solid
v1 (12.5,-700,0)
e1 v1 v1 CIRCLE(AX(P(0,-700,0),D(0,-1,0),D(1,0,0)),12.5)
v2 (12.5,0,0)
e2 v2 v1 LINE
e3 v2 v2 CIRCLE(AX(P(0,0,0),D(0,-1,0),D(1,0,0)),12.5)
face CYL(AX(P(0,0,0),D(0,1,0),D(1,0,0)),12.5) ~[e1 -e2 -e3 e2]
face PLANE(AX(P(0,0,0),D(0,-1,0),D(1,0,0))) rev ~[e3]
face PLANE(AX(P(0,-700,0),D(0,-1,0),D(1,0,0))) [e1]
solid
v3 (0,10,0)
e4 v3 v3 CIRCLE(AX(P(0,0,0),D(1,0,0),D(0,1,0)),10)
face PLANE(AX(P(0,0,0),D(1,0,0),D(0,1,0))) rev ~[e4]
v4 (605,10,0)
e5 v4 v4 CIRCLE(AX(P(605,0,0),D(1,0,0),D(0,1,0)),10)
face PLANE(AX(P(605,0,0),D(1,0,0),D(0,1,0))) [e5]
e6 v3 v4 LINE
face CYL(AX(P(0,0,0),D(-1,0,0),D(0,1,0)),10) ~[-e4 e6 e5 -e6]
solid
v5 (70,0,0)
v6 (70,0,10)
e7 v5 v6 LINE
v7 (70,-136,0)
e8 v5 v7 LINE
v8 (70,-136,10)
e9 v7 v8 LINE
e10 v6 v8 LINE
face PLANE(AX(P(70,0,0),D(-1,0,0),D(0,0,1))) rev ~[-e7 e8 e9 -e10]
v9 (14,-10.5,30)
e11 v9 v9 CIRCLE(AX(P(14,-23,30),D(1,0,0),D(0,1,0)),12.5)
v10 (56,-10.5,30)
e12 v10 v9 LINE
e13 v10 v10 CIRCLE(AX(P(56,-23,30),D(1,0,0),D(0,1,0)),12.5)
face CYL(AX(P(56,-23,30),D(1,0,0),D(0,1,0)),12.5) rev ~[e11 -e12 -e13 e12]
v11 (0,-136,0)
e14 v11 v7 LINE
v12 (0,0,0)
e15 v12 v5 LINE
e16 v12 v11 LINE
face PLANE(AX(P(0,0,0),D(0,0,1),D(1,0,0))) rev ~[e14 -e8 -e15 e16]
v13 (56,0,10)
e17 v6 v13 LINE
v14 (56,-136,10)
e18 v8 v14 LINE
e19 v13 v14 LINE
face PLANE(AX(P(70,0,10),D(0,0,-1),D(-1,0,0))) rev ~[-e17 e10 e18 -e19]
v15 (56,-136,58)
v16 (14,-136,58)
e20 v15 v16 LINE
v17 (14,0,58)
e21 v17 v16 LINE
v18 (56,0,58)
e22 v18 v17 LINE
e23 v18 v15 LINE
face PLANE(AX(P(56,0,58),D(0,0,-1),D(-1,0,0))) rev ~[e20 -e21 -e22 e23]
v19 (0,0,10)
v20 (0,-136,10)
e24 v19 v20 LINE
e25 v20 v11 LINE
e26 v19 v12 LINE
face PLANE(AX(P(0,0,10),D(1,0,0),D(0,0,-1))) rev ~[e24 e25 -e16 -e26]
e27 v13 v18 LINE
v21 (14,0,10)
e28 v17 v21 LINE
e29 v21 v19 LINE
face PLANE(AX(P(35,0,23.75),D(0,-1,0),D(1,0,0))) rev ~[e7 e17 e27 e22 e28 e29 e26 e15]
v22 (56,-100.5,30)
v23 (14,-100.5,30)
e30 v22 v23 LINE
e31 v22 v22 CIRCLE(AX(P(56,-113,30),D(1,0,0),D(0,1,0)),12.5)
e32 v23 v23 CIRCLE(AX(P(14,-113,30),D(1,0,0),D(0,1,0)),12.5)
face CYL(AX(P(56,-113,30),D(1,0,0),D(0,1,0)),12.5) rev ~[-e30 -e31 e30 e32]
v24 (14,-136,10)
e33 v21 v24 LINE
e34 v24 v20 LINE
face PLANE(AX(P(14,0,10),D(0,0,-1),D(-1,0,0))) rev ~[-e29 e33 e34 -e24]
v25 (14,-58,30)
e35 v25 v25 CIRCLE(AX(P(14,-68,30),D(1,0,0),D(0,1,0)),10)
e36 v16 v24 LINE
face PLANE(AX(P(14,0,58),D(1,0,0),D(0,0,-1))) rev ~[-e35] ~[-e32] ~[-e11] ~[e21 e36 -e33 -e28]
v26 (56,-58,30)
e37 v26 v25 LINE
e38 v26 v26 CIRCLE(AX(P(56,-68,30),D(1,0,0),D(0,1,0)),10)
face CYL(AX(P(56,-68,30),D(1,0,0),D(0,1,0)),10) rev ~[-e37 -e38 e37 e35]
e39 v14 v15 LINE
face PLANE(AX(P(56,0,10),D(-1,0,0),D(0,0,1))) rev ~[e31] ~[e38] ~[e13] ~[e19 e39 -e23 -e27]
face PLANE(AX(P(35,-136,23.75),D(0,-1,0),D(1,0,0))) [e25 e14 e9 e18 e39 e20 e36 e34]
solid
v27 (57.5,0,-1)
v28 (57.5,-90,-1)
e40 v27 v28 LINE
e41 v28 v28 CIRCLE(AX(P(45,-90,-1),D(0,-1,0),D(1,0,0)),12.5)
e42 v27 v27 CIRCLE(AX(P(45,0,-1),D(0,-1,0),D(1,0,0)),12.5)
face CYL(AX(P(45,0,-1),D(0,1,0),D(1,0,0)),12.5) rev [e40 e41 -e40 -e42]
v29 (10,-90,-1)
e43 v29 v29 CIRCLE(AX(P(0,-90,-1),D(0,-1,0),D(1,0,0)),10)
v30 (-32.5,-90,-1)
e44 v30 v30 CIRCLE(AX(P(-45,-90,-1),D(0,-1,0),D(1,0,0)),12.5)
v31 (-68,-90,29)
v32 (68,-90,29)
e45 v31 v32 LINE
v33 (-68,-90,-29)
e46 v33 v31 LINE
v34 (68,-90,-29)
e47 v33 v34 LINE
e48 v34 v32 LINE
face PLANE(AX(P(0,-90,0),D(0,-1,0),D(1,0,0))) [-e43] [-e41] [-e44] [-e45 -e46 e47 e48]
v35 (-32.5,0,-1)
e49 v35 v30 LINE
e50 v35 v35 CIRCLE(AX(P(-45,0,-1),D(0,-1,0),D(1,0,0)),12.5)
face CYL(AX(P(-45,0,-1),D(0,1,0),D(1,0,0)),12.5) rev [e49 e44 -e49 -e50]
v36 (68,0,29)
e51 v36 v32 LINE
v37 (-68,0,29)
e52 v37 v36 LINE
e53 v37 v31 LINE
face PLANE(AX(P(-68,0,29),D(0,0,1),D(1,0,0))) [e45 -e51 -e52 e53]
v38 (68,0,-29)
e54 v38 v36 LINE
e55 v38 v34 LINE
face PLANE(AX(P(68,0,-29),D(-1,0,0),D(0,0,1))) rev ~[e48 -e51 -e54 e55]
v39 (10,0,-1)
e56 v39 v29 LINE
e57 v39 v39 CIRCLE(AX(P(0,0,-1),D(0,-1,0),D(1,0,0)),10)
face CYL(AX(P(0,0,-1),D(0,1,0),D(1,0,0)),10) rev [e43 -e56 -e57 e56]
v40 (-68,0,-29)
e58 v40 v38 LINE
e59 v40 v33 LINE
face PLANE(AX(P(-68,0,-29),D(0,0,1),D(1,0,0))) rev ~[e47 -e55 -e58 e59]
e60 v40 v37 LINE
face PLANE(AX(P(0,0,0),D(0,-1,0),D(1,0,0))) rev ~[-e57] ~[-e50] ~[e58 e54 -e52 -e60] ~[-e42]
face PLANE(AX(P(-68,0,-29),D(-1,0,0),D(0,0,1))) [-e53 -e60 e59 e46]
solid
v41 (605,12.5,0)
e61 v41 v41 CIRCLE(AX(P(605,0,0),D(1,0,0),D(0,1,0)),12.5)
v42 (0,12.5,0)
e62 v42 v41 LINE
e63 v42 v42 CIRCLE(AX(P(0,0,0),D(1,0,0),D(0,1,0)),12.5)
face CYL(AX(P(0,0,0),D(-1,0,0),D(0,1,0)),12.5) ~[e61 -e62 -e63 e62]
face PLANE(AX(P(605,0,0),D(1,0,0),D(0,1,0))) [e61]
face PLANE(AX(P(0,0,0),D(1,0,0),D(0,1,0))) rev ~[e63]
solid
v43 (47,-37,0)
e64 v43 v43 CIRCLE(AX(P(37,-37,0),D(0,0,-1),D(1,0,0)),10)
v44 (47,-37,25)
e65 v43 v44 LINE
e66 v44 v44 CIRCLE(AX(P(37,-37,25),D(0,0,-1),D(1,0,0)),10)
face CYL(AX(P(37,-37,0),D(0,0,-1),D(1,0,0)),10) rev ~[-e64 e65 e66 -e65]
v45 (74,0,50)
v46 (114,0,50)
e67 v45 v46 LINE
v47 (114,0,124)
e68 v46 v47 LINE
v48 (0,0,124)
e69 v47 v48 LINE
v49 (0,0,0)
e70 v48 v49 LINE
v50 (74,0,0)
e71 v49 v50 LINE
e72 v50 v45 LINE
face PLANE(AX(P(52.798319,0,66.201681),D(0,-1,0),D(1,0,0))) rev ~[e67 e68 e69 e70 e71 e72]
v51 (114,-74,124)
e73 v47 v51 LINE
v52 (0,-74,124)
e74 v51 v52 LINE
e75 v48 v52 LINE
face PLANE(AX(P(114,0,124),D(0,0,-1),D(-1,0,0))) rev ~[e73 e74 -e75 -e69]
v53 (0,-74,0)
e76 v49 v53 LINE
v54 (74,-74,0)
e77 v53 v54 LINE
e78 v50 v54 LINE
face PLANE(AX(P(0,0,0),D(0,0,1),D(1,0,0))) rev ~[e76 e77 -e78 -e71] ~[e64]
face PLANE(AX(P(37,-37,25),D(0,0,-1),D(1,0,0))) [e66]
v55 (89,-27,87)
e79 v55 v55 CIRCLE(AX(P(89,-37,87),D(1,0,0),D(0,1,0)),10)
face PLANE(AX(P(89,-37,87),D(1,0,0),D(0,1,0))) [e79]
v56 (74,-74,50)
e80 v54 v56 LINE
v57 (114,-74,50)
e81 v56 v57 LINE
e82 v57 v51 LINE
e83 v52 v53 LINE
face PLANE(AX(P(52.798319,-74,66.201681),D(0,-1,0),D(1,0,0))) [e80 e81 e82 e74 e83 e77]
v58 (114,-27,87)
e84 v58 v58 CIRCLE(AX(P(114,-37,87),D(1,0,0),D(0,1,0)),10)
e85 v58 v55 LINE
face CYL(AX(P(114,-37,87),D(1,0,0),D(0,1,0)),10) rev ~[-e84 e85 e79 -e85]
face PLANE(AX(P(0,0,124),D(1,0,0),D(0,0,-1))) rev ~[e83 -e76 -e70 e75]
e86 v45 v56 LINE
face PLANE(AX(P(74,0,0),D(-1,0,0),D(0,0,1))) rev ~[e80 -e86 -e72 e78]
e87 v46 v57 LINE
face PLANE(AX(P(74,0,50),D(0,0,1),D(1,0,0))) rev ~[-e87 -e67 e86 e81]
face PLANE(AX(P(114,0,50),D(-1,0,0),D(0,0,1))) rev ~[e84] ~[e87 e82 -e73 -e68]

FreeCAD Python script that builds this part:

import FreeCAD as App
import Part
import Sketcher


def add_polygon(sketch, points):
    """Adds a closed chain of lines whose ends are joined by coincident constraints."""
    first, n = sketch.GeometryCount, len(points)
    for a, b in zip(points, points[1:] + points[:1]):
        sketch.addGeometry(Part.LineSegment(App.Vector(*a, 0), App.Vector(*b, 0)), False)
    for i in range(n):
        sketch.addConstraint(Sketcher.Constraint("Coincident", first + i, 2, first + (i + 1) % n, 1))

doc = App.newDocument("Part")
body = doc.addObject("PartDesign::Body", "Body")

sketch1 = body.newObject("Sketcher::SketchObject", "Sketch")
sketch1.AttachmentSupport = (doc.getObject("XZ_Plane"), [""])
sketch1.MapMode = "FlatFace"
add_polygon(sketch1, [(0, 10), (0, 0), (70, 0), (70, 10), (56, 10), (56, 58), (14, 58), (14, 10)])
sketch1.addConstraint([
    Sketcher.Constraint("Vertical", 0),
    Sketcher.Constraint("Horizontal", 1),
    Sketcher.Constraint("Vertical", 2),
    Sketcher.Constraint("Horizontal", 3),
    Sketcher.Constraint("Vertical", 4),
    Sketcher.Constraint("Horizontal", 5),
    Sketcher.Constraint("Vertical", 6),
    Sketcher.Constraint("Horizontal", 7),
    Sketcher.Constraint("Coincident", 0, 2, -1, 1),
    Sketcher.Constraint("Horizontal", 3, 2, 6, 2),
    Sketcher.Constraint("Equal", 3, 7),
    Sketcher.Constraint("DistanceX", 1, 1, 1, 2, 70.0),
    Sketcher.Constraint("DistanceX", 3, 2, 3, 1, 14.0),
    Sketcher.Constraint("DistanceY", 0, 2, 0, 1, 10.0),
    Sketcher.Constraint("DistanceY", 4, 1, 4, 2, 48.0),
])
pad1 = body.newObject("PartDesign::Pad", "Pad")
pad1.Profile = sketch1
pad1.Length = 136

sketch2 = body.newObject("Sketcher::SketchObject", "Sketch001")
sketch2.AttachmentSupport = (doc.getObject("YZ_Plane"), [""])
sketch2.MapMode = "FlatFace"
sketch2.AttachmentOffset = App.Placement(App.Vector(0, 0, 56), App.Rotation())
sketch2.addGeometry([
    Part.Circle(App.Vector(-113, 30, 0), App.Vector(0, 0, 1), 12),
    Part.Circle(App.Vector(-68, 30, 0), App.Vector(0, 0, 1), 10),
    Part.Circle(App.Vector(-23, 30, 0), App.Vector(0, 0, 1), 12),
], False)
sketch2.addConstraint([
    Sketcher.Constraint("Equal", 0, 2),
    Sketcher.Constraint("Horizontal", 0, 3, 1, 3),
    Sketcher.Constraint("Horizontal", 1, 3, 2, 3),
    Sketcher.Constraint("Diameter", 0, 25.0),
    Sketcher.Constraint("Diameter", 1, 20.0),
    Sketcher.Constraint("DistanceX", 0, 3, -1, 1, 113.0),
    Sketcher.Constraint("DistanceY", -1, 1, 0, 3, 30.0),
    Sketcher.Constraint("DistanceX", 1, 3, -1, 1, 68.0),
    Sketcher.Constraint("DistanceX", 2, 3, -1, 1, 23.0),
])
pocket1 = body.newObject("PartDesign::Pocket", "Pocket")
pocket1.Profile = sketch2
pocket1.Type = "ThroughAll"
body2 = doc.addObject("PartDesign::Body", "Body001")

sketch3 = body2.newObject("Sketcher::SketchObject", "Sketch002")
sketch3.AttachmentSupport = (doc.getObject("YZ_Plane001"), [""])
sketch3.MapMode = "FlatFace"
sketch3.addGeometry(Part.Circle(App.Vector(0, 0, 0), App.Vector(0, 0, 1), 10), False)
sketch3.addConstraint([
    Sketcher.Constraint("Coincident", 0, 3, -1, 1),
    Sketcher.Constraint("Diameter", 0, 20.0),
])
pad2 = body2.newObject("PartDesign::Pad", "Pad001")
pad2.Profile = sketch3
pad2.Length = 605
body3 = doc.addObject("PartDesign::Body", "Body002")

sketch4 = body3.newObject("Sketcher::SketchObject", "Sketch003")
sketch4.AttachmentSupport = (doc.getObject("YZ_Plane002"), [""])
sketch4.MapMode = "FlatFace"
sketch4.addGeometry(Part.Circle(App.Vector(0, 0, 0), App.Vector(0, 0, 1), 12), False)
sketch4.addConstraint([
    Sketcher.Constraint("Coincident", 0, 3, -1, 1),
    Sketcher.Constraint("Diameter", 0, 25.0),
])
pad3 = body3.newObject("PartDesign::Pad", "Pad002")
pad3.Profile = sketch4
pad3.Length = 605
body4 = doc.addObject("PartDesign::Body", "Body003")

sketch5 = body4.newObject("Sketcher::SketchObject", "Sketch004")
sketch5.AttachmentSupport = (doc.getObject("XZ_Plane003"), [""])
sketch5.MapMode = "FlatFace"
add_polygon(sketch5, [(-68, 29), (-68, -29), (68, -29), (68, 29)])
sketch5.addGeometry(Part.Circle(App.Vector(-45, -1, 0), App.Vector(0, 0, 1), 12), False)
sketch5.addGeometry(Part.Circle(App.Vector(0, -1, 0), App.Vector(0, 0, 1), 10), False)
sketch5.addGeometry(Part.Circle(App.Vector(45, -1, 0), App.Vector(0, 0, 1), 12), False)
sketch5.addConstraint([
    Sketcher.Constraint("Vertical", 0),
    Sketcher.Constraint("Horizontal", 1),
    Sketcher.Constraint("Vertical", 2),
    Sketcher.Constraint("Horizontal", 3),
    Sketcher.Constraint("Equal", 4, 6),
    Sketcher.Constraint("Symmetric", 0, 2, 2, 2, -1, 1),
    Sketcher.Constraint("Symmetric", 4, 3, 6, 3, -2),
    Sketcher.Constraint("PointOnObject", 5, 3, -2),
    Sketcher.Constraint("Horizontal", 4, 3, 5, 3),
    Sketcher.Constraint("Diameter", 4, 25.0),
    Sketcher.Constraint("Diameter", 5, 20.0),
    Sketcher.Constraint("DistanceX", 1, 1, 1, 2, 136.0),
    Sketcher.Constraint("DistanceY", 0, 2, 0, 1, 58.0),
    Sketcher.Constraint("DistanceX", 4, 3, -1, 1, 45.0),
    Sketcher.Constraint("DistanceY", 4, 3, -1, 1, 1.0),
])
pad4 = body4.newObject("PartDesign::Pad", "Pad003")
pad4.Profile = sketch5
pad4.Length = 90
body5 = doc.addObject("PartDesign::Body", "Body004")

sketch6 = body5.newObject("Sketcher::SketchObject", "Sketch005")
sketch6.AttachmentSupport = (doc.getObject("XZ_Plane004"), [""])
sketch6.MapMode = "FlatFace"
add_polygon(sketch6, [(0, 124), (0, 0), (74, 0), (74, 50), (114, 50), (114, 124)])
sketch6.addConstraint([
    Sketcher.Constraint("Vertical", 0),
    Sketcher.Constraint("Horizontal", 1),
    Sketcher.Constraint("Vertical", 2),
    Sketcher.Constraint("Horizontal", 3),
    Sketcher.Constraint("Vertical", 4),
    Sketcher.Constraint("Horizontal", 5),
    Sketcher.Constraint("Coincident", 0, 2, -1, 1),
    Sketcher.Constraint("Equal", 1, 4),
    Sketcher.Constraint("DistanceX", 1, 1, 1, 2, 74.0),
    Sketcher.Constraint("DistanceX", 3, 1, 3, 2, 40.0),
    Sketcher.Constraint("DistanceY", 0, 2, 0, 1, 124.0),
])
pad5 = body5.newObject("PartDesign::Pad", "Pad004")
pad5.Profile = sketch6
pad5.Length = 74

sketch7 = body5.newObject("Sketcher::SketchObject", "Sketch006")
sketch7.AttachmentSupport = (doc.getObject("XY_Plane004"), [""])
sketch7.MapMode = "FlatFace"
sketch7.addGeometry(Part.Circle(App.Vector(37, -37, 0), App.Vector(0, 0, 1), 10), False)
sketch7.addConstraint([
    Sketcher.Constraint("Diameter", 0, 20.0),
    Sketcher.Constraint("DistanceX", -1, 1, 0, 3, 37.0),
    Sketcher.Constraint("DistanceY", 0, 3, -1, 1, 37.0),
])
pocket2 = body5.newObject("PartDesign::Pocket", "Pocket001")
pocket2.Profile = sketch7
pocket2.Length = 25
pocket2.Reversed = True

sketch8 = body5.newObject("Sketcher::SketchObject", "Sketch007")
sketch8.AttachmentSupport = (doc.getObject("YZ_Plane004"), [""])
sketch8.MapMode = "FlatFace"
sketch8.AttachmentOffset = App.Placement(App.Vector(0, 0, 114), App.Rotation())
sketch8.addGeometry(Part.Circle(App.Vector(-37, 87, 0), App.Vector(0, 0, 1), 10), False)
sketch8.addConstraint([
    Sketcher.Constraint("Diameter", 0, 20.0),
    Sketcher.Constraint("DistanceX", 0, 3, -1, 1, 37.0),
    Sketcher.Constraint("DistanceY", -1, 1, 0, 3, 87.0),
])
pocket3 = body5.newObject("PartDesign::Pocket", "Pocket002")
pocket3.Profile = sketch8
pocket3.Length = 25
body6 = doc.addObject("PartDesign::Body", "Body005")

sketch9 = body6.newObject("Sketcher::SketchObject", "Sketch008")
sketch9.AttachmentSupport = (doc.getObject("XZ_Plane005"), [""])
sketch9.MapMode = "FlatFace"
sketch9.addGeometry(Part.Circle(App.Vector(0, 0, 0), App.Vector(0, 0, 1), 12), False)
sketch9.addConstraint([
    Sketcher.Constraint("Coincident", 0, 3, -1, 1),
    Sketcher.Constraint("Diameter", 0, 25.0),
])
pad6 = body6.newObject("PartDesign::Pad", "Pad005")
pad6.Profile = sketch9
pad6.Length = 700

doc.recompute()
